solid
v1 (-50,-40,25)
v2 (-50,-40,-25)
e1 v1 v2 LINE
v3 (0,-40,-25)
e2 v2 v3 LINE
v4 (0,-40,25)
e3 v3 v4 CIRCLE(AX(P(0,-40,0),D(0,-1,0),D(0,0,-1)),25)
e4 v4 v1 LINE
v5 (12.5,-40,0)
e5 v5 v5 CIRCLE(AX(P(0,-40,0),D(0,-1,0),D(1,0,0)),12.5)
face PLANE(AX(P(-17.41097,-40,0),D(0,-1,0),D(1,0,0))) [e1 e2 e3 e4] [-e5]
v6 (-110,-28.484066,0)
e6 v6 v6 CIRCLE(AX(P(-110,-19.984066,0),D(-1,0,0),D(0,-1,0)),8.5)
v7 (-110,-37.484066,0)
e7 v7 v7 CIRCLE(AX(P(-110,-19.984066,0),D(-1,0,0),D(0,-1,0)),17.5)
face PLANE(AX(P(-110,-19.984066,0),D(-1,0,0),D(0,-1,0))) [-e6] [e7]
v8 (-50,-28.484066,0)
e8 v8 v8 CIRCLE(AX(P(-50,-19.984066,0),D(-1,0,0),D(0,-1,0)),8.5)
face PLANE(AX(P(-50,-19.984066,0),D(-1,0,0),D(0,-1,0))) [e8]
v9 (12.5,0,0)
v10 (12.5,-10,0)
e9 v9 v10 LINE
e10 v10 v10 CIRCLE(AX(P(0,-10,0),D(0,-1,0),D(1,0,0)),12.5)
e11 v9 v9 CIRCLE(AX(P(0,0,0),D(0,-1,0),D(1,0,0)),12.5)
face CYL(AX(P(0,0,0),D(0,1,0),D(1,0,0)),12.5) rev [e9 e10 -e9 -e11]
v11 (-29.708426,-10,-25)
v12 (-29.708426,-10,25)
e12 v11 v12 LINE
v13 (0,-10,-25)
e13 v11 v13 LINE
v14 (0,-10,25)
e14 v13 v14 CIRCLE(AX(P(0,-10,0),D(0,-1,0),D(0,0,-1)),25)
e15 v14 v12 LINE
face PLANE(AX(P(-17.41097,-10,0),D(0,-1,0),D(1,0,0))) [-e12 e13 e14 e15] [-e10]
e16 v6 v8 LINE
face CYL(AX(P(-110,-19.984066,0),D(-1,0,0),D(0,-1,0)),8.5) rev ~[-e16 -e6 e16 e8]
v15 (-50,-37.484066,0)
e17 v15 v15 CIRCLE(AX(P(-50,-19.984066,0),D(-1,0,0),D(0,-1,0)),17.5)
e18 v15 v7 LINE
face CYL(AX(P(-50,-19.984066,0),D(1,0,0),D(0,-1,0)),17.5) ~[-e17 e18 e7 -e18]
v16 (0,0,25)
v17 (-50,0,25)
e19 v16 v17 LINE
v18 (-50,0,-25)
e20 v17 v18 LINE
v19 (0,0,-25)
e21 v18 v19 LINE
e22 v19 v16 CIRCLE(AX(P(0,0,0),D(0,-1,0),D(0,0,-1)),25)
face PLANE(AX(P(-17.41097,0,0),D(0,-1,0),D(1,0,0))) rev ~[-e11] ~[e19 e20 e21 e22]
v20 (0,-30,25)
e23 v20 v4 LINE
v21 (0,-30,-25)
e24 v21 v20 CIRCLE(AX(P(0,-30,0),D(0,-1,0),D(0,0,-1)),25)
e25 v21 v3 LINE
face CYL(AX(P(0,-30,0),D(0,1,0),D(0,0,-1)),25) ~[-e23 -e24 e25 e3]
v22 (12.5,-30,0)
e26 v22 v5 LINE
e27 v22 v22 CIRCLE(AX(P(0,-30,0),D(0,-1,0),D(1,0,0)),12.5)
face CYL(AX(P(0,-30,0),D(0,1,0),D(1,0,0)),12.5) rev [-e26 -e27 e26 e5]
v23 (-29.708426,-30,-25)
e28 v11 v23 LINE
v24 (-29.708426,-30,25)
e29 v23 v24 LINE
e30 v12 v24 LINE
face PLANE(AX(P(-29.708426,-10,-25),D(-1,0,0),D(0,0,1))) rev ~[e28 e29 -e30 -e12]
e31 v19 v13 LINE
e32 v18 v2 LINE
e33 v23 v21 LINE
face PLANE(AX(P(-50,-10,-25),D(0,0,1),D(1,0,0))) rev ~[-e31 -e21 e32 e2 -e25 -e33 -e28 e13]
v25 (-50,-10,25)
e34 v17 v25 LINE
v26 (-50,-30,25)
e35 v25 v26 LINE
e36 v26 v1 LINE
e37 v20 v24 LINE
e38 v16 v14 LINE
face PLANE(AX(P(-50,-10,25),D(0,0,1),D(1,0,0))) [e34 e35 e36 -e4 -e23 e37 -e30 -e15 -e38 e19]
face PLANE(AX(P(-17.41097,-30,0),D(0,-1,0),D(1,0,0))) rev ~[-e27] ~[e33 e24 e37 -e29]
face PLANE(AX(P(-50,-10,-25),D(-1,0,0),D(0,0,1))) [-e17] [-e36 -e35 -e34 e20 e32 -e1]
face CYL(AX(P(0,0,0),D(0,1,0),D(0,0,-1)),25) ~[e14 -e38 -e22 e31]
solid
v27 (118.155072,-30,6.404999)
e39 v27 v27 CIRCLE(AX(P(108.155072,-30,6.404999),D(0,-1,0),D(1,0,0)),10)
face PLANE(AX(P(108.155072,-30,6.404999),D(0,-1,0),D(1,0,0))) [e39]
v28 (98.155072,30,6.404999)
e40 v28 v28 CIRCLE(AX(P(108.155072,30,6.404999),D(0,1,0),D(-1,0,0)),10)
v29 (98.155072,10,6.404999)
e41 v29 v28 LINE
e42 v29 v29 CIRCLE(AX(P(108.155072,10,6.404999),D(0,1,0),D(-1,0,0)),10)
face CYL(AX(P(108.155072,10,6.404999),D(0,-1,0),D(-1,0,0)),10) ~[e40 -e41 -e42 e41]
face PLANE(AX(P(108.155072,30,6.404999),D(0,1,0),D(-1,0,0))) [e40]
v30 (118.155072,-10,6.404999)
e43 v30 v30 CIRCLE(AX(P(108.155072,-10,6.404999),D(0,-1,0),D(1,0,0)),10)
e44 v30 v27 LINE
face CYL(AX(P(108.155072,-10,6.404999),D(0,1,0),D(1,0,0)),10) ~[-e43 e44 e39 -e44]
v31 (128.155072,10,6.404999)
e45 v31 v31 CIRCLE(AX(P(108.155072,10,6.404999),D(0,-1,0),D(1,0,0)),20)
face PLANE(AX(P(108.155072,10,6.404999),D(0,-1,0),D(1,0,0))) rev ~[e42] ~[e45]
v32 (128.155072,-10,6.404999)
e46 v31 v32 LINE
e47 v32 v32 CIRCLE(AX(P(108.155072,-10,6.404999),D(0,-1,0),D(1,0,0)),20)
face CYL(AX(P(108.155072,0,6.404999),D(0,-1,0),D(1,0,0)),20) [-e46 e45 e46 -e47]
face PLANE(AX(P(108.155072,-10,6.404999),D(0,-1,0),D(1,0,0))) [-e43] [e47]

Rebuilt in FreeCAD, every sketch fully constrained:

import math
import FreeCAD as App
import Part
import Sketcher

doc = App.newDocument("Part")
body = doc.addObject("PartDesign::Body", "Body")

sketch1 = doc.addObject("Sketcher::SketchObject", "Sketch")
body.addObject(sketch1)
sketch1.AttachmentSupport = (doc.XZ_Plane, [""])
sketch1.MapMode = "FlatFace"
sketch1.addGeometry([
    Part.LineSegment(App.Vector(-50, -25, 0), App.Vector(0, -25, 0)),
    Part.ArcOfCircle(Part.Circle(App.Vector(0, 0, 0), App.Vector(0, 0, 1), 25), math.radians(-90), math.radians(90)),
    Part.LineSegment(App.Vector(0, 25, 0), App.Vector(-50, 25, 0)),
    Part.LineSegment(App.Vector(-50, 25, 0), App.Vector(-50, -25, 0)),
    Part.Circle(App.Vector(0, 0, 0), App.Vector(0, 0, 1), 12),
], False)
sketch1.addConstraint([
    Sketcher.Constraint("Tangent", 0, 2, 1, 1),
    Sketcher.Constraint("Tangent", 1, 2, 2, 1),
    Sketcher.Constraint("Coincident", 2, 2, 3, 1),
    Sketcher.Constraint("Coincident", 3, 2, 0, 1),
    Sketcher.Constraint("Horizontal", 0),
    Sketcher.Constraint("Horizontal", 2),
    Sketcher.Constraint("Vertical", 3),
    Sketcher.Constraint("Coincident", 1, 3, -1, 1),
    Sketcher.Constraint("Coincident", 4, 3, -1, 1),
    Sketcher.Constraint("Equal", 2, 3),
    Sketcher.Constraint("Diameter", 4, 25.0),
    Sketcher.Constraint("Radius", 1, 25.0),
])
pad1 = doc.addObject("PartDesign::Pad", "Pad")
body.addObject(pad1)
pad1.Profile = sketch1
pad1.Length = 10
body2 = doc.addObject("PartDesign::Body", "Body001")

sketch2 = doc.addObject("Sketcher::SketchObject", "Sketch001")
body2.addObject(sketch2)
sketch2.AttachmentSupport = (doc.getObject("XZ_Plane001"), [""])
sketch2.MapMode = "FlatFace"
sketch2.AttachmentOffset = App.Placement(App.Vector(0, 0, 30), App.Rotation())
sketch2.addGeometry([
    Part.LineSegment(App.Vector(0, 25, 0), App.Vector(-50, 25, 0)),
    Part.LineSegment(App.Vector(-50, 25, 0), App.Vector(-50, -25, 0)),
    Part.LineSegment(App.Vector(-50, -25, 0), App.Vector(0, -25, 0)),
    Part.ArcOfCircle(Part.Circle(App.Vector(0, 0, 0), App.Vector(0, 0, 1), 25), math.radians(-90), math.radians(90)),
    Part.Circle(App.Vector(0, 0, 0), App.Vector(0, 0, 1), 12),
], False)
sketch2.addConstraint([
    Sketcher.Constraint("Coincident", 0, 2, 1, 1),
    Sketcher.Constraint("Coincident", 1, 2, 2, 1),
    Sketcher.Constraint("Tangent", 2, 2, 3, 1),
    Sketcher.Constraint("Tangent", 3, 2, 0, 1),
    Sketcher.Constraint("Horizontal", 0),
    Sketcher.Constraint("Vertical", 1),
    Sketcher.Constraint("Horizontal", 2),
    Sketcher.Constraint("Coincident", 3, 3, -1, 1),
    Sketcher.Constraint("Coincident", 4, 3, -1, 1),
    Sketcher.Constraint("Equal", 2, 1),
    Sketcher.Constraint("Diameter", 4, 25.0),
    Sketcher.Constraint("Radius", 3, 25.0),
])
pad2 = doc.addObject("PartDesign::Pad", "Pad001")
body2.addObject(pad2)
pad2.Profile = sketch2
pad2.Length = 10
body.AllowCompound = True
doc.recompute()

boolean = doc.addObject("PartDesign::Boolean", "Boolean")
body.addObject(boolean)
boolean.Type = "Fuse"
boolean.addObjects([body2])

sketch3 = doc.addObject("Sketcher::SketchObject", "Sketch002")
body.addObject(sketch3)
sketch3.AttachmentSupport = (doc.XZ_Plane, [""])
sketch3.MapMode = "FlatFace"
sketch3.AttachmentOffset = App.Placement(App.Vector(0, 0, 10), App.Rotation())
sketch3.addGeometry([
    Part.LineSegment(App.Vector(-50, 25, 0), App.Vector(-50, -25, 0)),
    Part.LineSegment(App.Vector(-50, -25, 0), App.Vector(-30, -25, 0)),
    Part.LineSegment(App.Vector(-30, -25, 0), App.Vector(-30, 25, 0)),
    Part.LineSegment(App.Vector(-30, 25, 0), App.Vector(-50, 25, 0)),
], False)
sketch3.addConstraint([
    Sketcher.Constraint("Coincident", 0, 2, 1, 1),
    Sketcher.Constraint("Coincident", 1, 2, 2, 1),
    Sketcher.Constraint("Coincident", 2, 2, 3, 1),
    Sketcher.Constraint("Coincident", 3, 2, 0, 1),
    Sketcher.Constraint("Vertical", 0),
    Sketcher.Constraint("Horizontal", 1),
    Sketcher.Constraint("Vertical", 2),
    Sketcher.Constraint("Horizontal", 3),
    Sketcher.Constraint("DistanceY", 0, 2, 0, 1, 50.0),
    Sketcher.Constraint("DistanceX", 0, 2, -1, 1, 50.0),
    Sketcher.Constraint("DistanceY", 0, 2, -1, 1, 25.0),
    Sketcher.Constraint("DistanceX", 1, 1, 1, 2, 20.291574),
])
pad3 = doc.addObject("PartDesign::Pad", "Pad002")
body.addObject(pad3)
pad3.Profile = sketch3
pad3.Type = "UpToLast"

sketch4 = doc.addObject("Sketcher::SketchObject", "Sketch003")
body.addObject(sketch4)
sketch4.AttachmentSupport = (doc.YZ_Plane, [""])
sketch4.MapMode = "FlatFace"
sketch4.AttachmentOffset = App.Placement(App.Vector(0, 0, -50), App.Rotation())
sketch4.addGeometry(Part.Circle(App.Vector(-20, 0, 0), App.Vector(0, 0, 1), 18), False)
sketch4.addConstraint([
    Sketcher.Constraint("PointOnObject", 0, 3, -1),
    Sketcher.Constraint("Diameter", 0, 35.0),
    Sketcher.Constraint("DistanceX", 0, 3, -1, 1, 19.984066),
])
pad4 = doc.addObject("PartDesign::Pad", "Pad003")
body.addObject(pad4)
pad4.Profile = sketch4
pad4.Length = 60
pad4.Reversed = True

sketch5 = doc.addObject("Sketcher::SketchObject", "Sketch004")
body.addObject(sketch5)
sketch5.AttachmentSupport = (doc.YZ_Plane, [""])
sketch5.MapMode = "FlatFace"
sketch5.AttachmentOffset = App.Placement(App.Vector(0, 0, -110), App.Rotation())
sketch5.addGeometry(Part.Circle(App.Vector(-20, 0, 0), App.Vector(0, 0, 1), 8), False)
sketch5.addConstraint([
    Sketcher.Constraint("PointOnObject", 0, 3, -1),
    Sketcher.Constraint("Diameter", 0, 17.0),
    Sketcher.Constraint("DistanceX", 0, 3, -1, 1, 19.984066),
])
pocket1 = doc.addObject("PartDesign::Pocket", "Pocket")
body.addObject(pocket1)
pocket1.Profile = sketch5
pocket1.Length = 60
pocket1.Reversed = True
body3 = doc.addObject("PartDesign::Body", "Body002")

sketch6 = doc.addObject("Sketcher::SketchObject", "Sketch005")
body3.addObject(sketch6)
sketch6.AttachmentSupport = (doc.getObject("XZ_Plane002"), [""])
sketch6.MapMode = "FlatFace"
sketch6.addGeometry(Part.Circle(App.Vector(108, 6, 0), App.Vector(0, 0, 1), 20), False)
sketch6.addConstraint([
    Sketcher.Constraint("Diameter", 0, 40.0),
    Sketcher.Constraint("DistanceY", -1, 1, 0, 3, 6.404999),
    Sketcher.Constraint("DistanceX", -1, 1, 0, 3, 108.155072),
])
pad5 = doc.addObject("PartDesign::Pad", "Pad004")
body3.addObject(pad5)
pad5.Profile = sketch6
pad5.Type = "TwoLengths"
pad5.Length = 10
pad5.Length2 = 10

sketch7 = doc.addObject("Sketcher::SketchObject", "Sketch006")
body3.addObject(sketch7)
sketch7.AttachmentSupport = (doc.getObject("XZ_Plane002"), [""])
sketch7.MapMode = "FlatFace"
sketch7.AttachmentOffset = App.Placement(App.Vector(0, 0, 10), App.Rotation())
sketch7.addGeometry(Part.Circle(App.Vector(108, 6, 0), App.Vector(0, 0, 1), 10), False)
sketch7.addConstraint([
    Sketcher.Constraint("Diameter", 0, 20.0),
    Sketcher.Constraint("DistanceY", -1, 1, 0, 3, 6.404999),
    Sketcher.Constraint("DistanceX", -1, 1, 0, 3, 108.155072),
])
pad6 = doc.addObject("PartDesign::Pad", "Pad005")
body3.addObject(pad6)
pad6.Profile = sketch7
pad6.Length = 20

sketch8 = doc.addObject("Sketcher::SketchObject", "Sketch007")
body3.addObject(sketch8)
sketch8.AttachmentSupport = (doc.getObject("XZ_Plane002"), [""])
sketch8.MapMode = "FlatFace"
sketch8.AttachmentOffset = App.Placement(App.Vector(0, 0, -10), App.Rotation())
sketch8.addGeometry(Part.Circle(App.Vector(108, 6, 0), App.Vector(0, 0, 1), 10), False)
sketch8.addConstraint([
    Sketcher.Constraint("Diameter", 0, 20.0),
    Sketcher.Constraint("DistanceY", -1, 1, 0, 3, 6.404999),
    Sketcher.Constraint("DistanceX", -1, 1, 0, 3, 108.155072),
])
pad7 = doc.addObject("PartDesign::Pad", "Pad006")
body3.addObject(pad7)
pad7.Profile = sketch8
pad7.Length = 20
pad7.Reversed = True

doc.recompute()
